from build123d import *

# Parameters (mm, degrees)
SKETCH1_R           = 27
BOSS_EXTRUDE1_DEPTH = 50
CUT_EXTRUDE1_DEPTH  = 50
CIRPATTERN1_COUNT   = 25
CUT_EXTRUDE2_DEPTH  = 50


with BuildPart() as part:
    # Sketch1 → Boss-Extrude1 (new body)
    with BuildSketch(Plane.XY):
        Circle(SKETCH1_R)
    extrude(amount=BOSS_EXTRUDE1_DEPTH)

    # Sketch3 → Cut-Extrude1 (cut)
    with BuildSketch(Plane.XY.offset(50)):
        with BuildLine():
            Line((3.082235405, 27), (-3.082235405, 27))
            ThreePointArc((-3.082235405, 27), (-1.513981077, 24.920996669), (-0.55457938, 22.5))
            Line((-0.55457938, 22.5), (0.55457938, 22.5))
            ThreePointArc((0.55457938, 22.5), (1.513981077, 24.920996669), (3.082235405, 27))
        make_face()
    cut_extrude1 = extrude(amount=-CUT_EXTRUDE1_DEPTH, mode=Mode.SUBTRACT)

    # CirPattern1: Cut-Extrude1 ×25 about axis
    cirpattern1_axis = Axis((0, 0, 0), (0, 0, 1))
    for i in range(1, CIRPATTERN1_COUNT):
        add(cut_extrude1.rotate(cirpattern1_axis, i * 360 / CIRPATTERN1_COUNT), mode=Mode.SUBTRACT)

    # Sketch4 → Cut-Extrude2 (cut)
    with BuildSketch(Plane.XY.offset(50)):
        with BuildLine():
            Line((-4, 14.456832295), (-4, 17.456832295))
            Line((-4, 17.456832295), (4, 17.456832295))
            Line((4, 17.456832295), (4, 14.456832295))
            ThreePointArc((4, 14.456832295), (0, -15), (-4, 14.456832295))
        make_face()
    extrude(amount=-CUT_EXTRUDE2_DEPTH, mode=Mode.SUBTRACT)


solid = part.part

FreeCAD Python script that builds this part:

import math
import FreeCAD as App
import Part
import Sketcher

V = App.Vector
Q = App.Units.Quantity

doc = App.newDocument("Part")
body = doc.addObject("PartDesign::Body", "Body")

# Sketch on XY plane
sketch1 = body.newObject("Sketcher::SketchObject", "Sketch")
sketch1.AttachmentSupport = (doc.getObject("XY_Plane"), [""])
sketch1.MapMode = "FlatFace"
sketch1.addGeometry(Part.Circle(V(0, 0, 0), V(0, 0, 1), 27), False)
sketch1.addConstraint([
    Sketcher.Constraint("Coincident", 0, 3, -1, 1),
    Sketcher.Constraint("Diameter", 0, Q("54 mm")),
])
pad1 = body.newObject("PartDesign::Pad", "Pad")
pad1.Profile = sketch1
pad1.Length = 50

# Sketch on XY plane
sketch2 = body.newObject("Sketcher::SketchObject", "Sketch001")
sketch2.AttachmentSupport = (doc.getObject("XY_Plane"), [""])
sketch2.MapMode = "FlatFace"
sketch2.AttachmentOffset = App.Placement(V(0, 0, 50), App.Rotation())
sketch2.addGeometry([
    Part.LineSegment(V(3.1, 27, 0), V(-3.1, 27, 0)),
    Part.ArcOfCircle(Part.Circle(V(-10, 20.2, 0), V(0, 0, 1), 9.7), math.radians(14), math.radians(45)),
    Part.LineSegment(V(-0.6, 22.5, 0), V(0.6, 22.5, 0)),
    Part.ArcOfCircle(Part.Circle(V(10, 20.2, 0), V(0, 0, 1), 9.7), math.radians(135), math.radians(166)),
], False)
sketch2.addConstraint([
    Sketcher.Constraint("Coincident", 0, 2, 1, 2),
    Sketcher.Constraint("Coincident", 1, 1, 2, 1),
    Sketcher.Constraint("Coincident", 2, 2, 3, 2),
    Sketcher.Constraint("Coincident", 3, 1, 0, 1),
    Sketcher.Constraint("Horizontal", 0),
    Sketcher.Constraint("Horizontal", 2),
    Sketcher.Constraint("Equal", 1, 3),
    Sketcher.Constraint("Symmetric", 1, 3, 3, 3, -2),
    Sketcher.Constraint("DistanceY", -1, 1, 0, 2, Q("27 mm")),
    Sketcher.Constraint("DistanceY", -1, 1, 1, 1, Q("22.5 mm")),
    Sketcher.Constraint("Radius", 1, Q("9.711316 mm")),
    Sketcher.Constraint("DistanceX", 0, 2, 0, 1, Q("6.164471 mm")),
    Sketcher.Constraint("DistanceX", 2, 1, 2, 2, Q("1.109159 mm")),
])
pocket1 = body.newObject("PartDesign::Pocket", "Pocket")
pocket1.Profile = sketch2
pocket1.Length = 50
doc.recompute()

polarpattern = body.newObject("PartDesign::PolarPattern", "PolarPattern")
polarpattern.Originals = [pocket1]
polarpattern.Axis = (doc.getObject("Z_Axis"), [""])
polarpattern.Angle = 360
polarpattern.Occurrences = 25
body.Tip = polarpattern

# Sketch on XY plane
sketch3 = body.newObject("Sketcher::SketchObject", "Sketch002")
sketch3.AttachmentSupport = (doc.getObject("XY_Plane"), [""])
sketch3.MapMode = "FlatFace"
sketch3.AttachmentOffset = App.Placement(V(0, 0, 50), App.Rotation())
sketch3.addGeometry([
    Part.LineSegment(V(-4, 17.5, 0), V(-4, 14.5, 0)),
    Part.ArcOfCircle(Part.Circle(V(0, 0, 0), V(0, 0, 1), 15), math.radians(105), math.radians(435)),
    Part.LineSegment(V(4, 14.5, 0), V(4, 17.5, 0)),
    Part.LineSegment(V(4, 17.5, 0), V(-4, 17.5, 0)),
], False)
sketch3.addConstraint([
    Sketcher.Constraint("Coincident", 0, 2, 1, 1),
    Sketcher.Constraint("Coincident", 1, 2, 2, 1),
    Sketcher.Constraint("Coincident", 2, 2, 3, 1),
    Sketcher.Constraint("Coincident", 3, 2, 0, 1),
    Sketcher.Constraint("Vertical", 0),
    Sketcher.Constraint("Vertical", 2),
    Sketcher.Constraint("Horizontal", 3),
    Sketcher.Constraint("Coincident", 1, 3, -1, 1),
    Sketcher.Constraint("Horizontal", 0, 2, 1, 2),
    Sketcher.Constraint("Radius", 1, Q("15 mm")),
    Sketcher.Constraint("DistanceX", 3, 2, 3, 1, Q("8 mm")),
    Sketcher.Constraint("DistanceY", 0, 2, 0, 1, Q("3 mm")),
])
pocket2 = body.newObject("PartDesign::Pocket", "Pocket001")
pocket2.Profile = sketch3
pocket2.Length = 50

doc.recompute()
